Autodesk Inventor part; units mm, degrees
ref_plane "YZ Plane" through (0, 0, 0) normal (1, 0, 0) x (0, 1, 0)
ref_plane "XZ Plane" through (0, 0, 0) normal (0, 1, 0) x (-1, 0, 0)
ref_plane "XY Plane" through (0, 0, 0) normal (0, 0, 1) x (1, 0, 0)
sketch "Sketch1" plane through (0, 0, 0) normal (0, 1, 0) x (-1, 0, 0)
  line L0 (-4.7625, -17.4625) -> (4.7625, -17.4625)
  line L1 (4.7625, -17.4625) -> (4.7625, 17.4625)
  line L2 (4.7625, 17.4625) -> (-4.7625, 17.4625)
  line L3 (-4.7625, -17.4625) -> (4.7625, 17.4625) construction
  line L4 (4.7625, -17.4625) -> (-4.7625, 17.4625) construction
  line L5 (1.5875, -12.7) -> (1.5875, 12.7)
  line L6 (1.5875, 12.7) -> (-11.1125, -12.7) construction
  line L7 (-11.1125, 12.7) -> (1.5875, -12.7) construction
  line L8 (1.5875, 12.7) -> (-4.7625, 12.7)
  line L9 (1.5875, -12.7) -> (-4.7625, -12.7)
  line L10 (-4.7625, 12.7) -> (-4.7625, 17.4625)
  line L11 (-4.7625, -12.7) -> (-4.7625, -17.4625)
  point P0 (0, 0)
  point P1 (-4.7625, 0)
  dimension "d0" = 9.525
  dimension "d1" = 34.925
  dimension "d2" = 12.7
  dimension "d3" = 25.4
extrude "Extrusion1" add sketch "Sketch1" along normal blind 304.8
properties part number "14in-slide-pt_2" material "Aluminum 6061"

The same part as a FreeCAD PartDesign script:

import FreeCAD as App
import Part
import Sketcher
Q = App.Units.Quantity

doc = App.newDocument("Part")
params = doc.addObject("Spreadsheet::Sheet", "Params")
for row, (alias, value) in enumerate([
    ("sketch1_height", "1 in"),
    ("sketch1_width", "0.375 in"),
    ("sketch1_height2", "1.375 in"),
    ("sketch1_width2", "0.25 in"),
    ("pad1_length", "12 in"),
], start=1):
    params.set(f"A{row}", alias)
    params.set(f"B{row}", "=" + value)
    params.setAlias(f"B{row}", alias)

body = doc.addObject("PartDesign::Body", "Body")

sketch1 = body.newObject("Sketcher::SketchObject", "Sketch")
sketch1.AttachmentSupport = (doc.getObject("XZ_Plane"), [""])
sketch1.MapMode = "FlatFace"
sketch1.addGeometry([
    Part.LineSegment(App.Vector(4.8, -12.7, 0), App.Vector(4.8, -17.5, 0)),
    Part.LineSegment(App.Vector(4.8, -17.5, 0), App.Vector(-4.8, -17.5, 0)),
    Part.LineSegment(App.Vector(-4.8, -17.5, 0), App.Vector(-4.8, 17.5, 0)),
    Part.LineSegment(App.Vector(-4.8, 17.5, 0), App.Vector(4.8, 17.5, 0)),
    Part.LineSegment(App.Vector(4.8, 17.5, 0), App.Vector(4.8, 12.7, 0)),
    Part.LineSegment(App.Vector(4.8, 12.7, 0), App.Vector(-1.6, 12.7, 0)),
    Part.LineSegment(App.Vector(-1.6, 12.7, 0), App.Vector(-1.6, -12.7, 0)),
    Part.LineSegment(App.Vector(-1.6, -12.7, 0), App.Vector(4.8, -12.7, 0)),
], False)
sketch1.addConstraint([
    Sketcher.Constraint("Coincident", 0, 2, 1, 1),
    Sketcher.Constraint("Coincident", 1, 2, 2, 1),
    Sketcher.Constraint("Coincident", 2, 2, 3, 1),
    Sketcher.Constraint("Coincident", 3, 2, 4, 1),
    Sketcher.Constraint("Coincident", 4, 2, 5, 1),
    Sketcher.Constraint("Coincident", 5, 2, 6, 1),
    Sketcher.Constraint("Coincident", 6, 2, 7, 1),
    Sketcher.Constraint("Coincident", 7, 2, 0, 1),
    Sketcher.Constraint("Vertical", 0),
    Sketcher.Constraint("Horizontal", 1),
    Sketcher.Constraint("Vertical", 2),
    Sketcher.Constraint("Horizontal", 3),
    Sketcher.Constraint("Vertical", 4),
    Sketcher.Constraint("Horizontal", 5),
    Sketcher.Constraint("Vertical", 6),
    Sketcher.Constraint("Horizontal", 7),
    Sketcher.Constraint("Symmetric", 0, 2, 2, 2, -1, 1),
    Sketcher.Constraint("Symmetric", 4, 2, 7, 2, -1),
    Sketcher.Constraint("DistanceY", 6, 2, 6, 1, Q("1 in")),
    Sketcher.Constraint("DistanceX", 1, 2, 1, 1, Q("0.375 in")),
    Sketcher.Constraint("DistanceY", 2, 1, 2, 2, Q("1.375 in")),
    Sketcher.Constraint("DistanceX", 5, 2, 5, 1, Q("0.25 in")),
])
sketch1.setExpression("Constraints[18]", "Params.sketch1_height")
sketch1.setExpression("Constraints[19]", "Params.sketch1_width")
sketch1.setExpression("Constraints[20]", "Params.sketch1_height2")
sketch1.setExpression("Constraints[21]", "Params.sketch1_width2")
pad1 = body.newObject("PartDesign::Pad", "Pad")
pad1.Profile = sketch1
pad1.setExpression("Length", "Params.pad1_length")
pad1.Reversed = True

doc.recompute()
